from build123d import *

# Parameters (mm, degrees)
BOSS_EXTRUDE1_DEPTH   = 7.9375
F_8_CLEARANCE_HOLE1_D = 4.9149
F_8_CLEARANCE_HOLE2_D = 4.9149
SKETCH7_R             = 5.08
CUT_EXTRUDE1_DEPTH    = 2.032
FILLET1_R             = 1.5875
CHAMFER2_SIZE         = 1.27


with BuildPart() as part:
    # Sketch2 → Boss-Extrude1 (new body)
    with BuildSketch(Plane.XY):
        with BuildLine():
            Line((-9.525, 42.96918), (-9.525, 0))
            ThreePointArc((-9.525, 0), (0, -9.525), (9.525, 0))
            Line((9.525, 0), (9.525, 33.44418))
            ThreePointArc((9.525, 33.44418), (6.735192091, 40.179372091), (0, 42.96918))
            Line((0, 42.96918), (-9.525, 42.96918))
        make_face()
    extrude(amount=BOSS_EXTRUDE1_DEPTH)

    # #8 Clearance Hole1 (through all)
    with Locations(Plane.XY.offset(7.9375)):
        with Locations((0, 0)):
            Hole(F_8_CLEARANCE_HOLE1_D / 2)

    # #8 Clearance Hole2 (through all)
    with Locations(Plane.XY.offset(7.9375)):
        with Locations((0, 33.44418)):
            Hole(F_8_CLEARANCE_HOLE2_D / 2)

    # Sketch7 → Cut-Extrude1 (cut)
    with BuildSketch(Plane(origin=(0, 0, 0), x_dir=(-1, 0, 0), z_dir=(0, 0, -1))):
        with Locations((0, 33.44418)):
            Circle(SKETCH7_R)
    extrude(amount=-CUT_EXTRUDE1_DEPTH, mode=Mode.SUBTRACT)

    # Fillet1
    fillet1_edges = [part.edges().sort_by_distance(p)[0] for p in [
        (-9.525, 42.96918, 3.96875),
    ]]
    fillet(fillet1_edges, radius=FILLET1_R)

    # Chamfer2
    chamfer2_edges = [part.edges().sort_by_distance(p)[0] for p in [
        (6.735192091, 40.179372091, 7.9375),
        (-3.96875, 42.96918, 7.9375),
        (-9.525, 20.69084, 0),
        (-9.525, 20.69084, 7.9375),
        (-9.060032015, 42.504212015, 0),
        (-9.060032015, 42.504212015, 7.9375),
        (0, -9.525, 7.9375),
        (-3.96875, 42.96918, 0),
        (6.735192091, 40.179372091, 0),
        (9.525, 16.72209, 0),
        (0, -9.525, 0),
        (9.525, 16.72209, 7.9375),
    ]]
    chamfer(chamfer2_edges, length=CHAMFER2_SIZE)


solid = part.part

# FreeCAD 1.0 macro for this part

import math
import FreeCAD as App
import Part
import Sketcher
from FreeCAD import Vector
Q = App.Units.Quantity


def edges_at(feature, points):
    """Names of the edges that pass closest to the given points."""
    edges = feature.Shape.Edges
    near = lambda p: min(range(len(edges)), key=lambda i: edges[i].distToShape(Part.Vertex(*p))[0])
    return sorted({f"Edge{near(p) + 1}" for p in points})

doc = App.newDocument("Part")
body = doc.addObject("PartDesign::Body", "Body")

# Sketch on XY plane
sketch1 = doc.addObject("Sketcher::SketchObject", "Sketch")
body.addObject(sketch1)
sketch1.AttachmentSupport = (doc.XY_Plane, [""])
sketch1.MapMode = "FlatFace"
sketch1.addGeometry([
    Part.LineSegment(Vector(-10, 43, 0), Vector(-10, 0, 0)),  # 0
    Part.ArcOfCircle(Part.Circle(Vector(0, 0, 0), Vector(0, 0, 1), 10), math.radians(180), math.radians(360)),  # 1
    Part.LineSegment(Vector(10, 0, 0), Vector(10, 33, 0)),  # 2
    Part.ArcOfCircle(Part.Circle(Vector(0, 33, 0), Vector(0, 0, 1), 10), math.radians(0), math.radians(90)),  # 3
    Part.LineSegment(Vector(0, 43, 0), Vector(-10, 43, 0)),  # 4
], False)
sketch1.addConstraint([
    Sketcher.Constraint("Tangent", 0, 2, 1, 1),
    Sketcher.Constraint("Tangent", 1, 2, 2, 1),
    Sketcher.Constraint("Tangent", 2, 2, 3, 1),
    Sketcher.Constraint("Tangent", 3, 2, 4, 1),
    Sketcher.Constraint("Coincident", 4, 2, 0, 1),
    Sketcher.Constraint("Vertical", 0),
    Sketcher.Constraint("Vertical", 2),
    Sketcher.Constraint("Horizontal", 4),
    Sketcher.Constraint("Coincident", 1, 3, -1, 1),
    Sketcher.Constraint("Equal", 1, 3),
    Sketcher.Constraint("Radius", 1, Q("0.375 in")),
    Sketcher.Constraint("DistanceY", 0, 2, 0, 1, Q("1.6917 in")),
])
pad1 = doc.addObject("PartDesign::Pad", "Pad")
body.addObject(pad1)
pad1.Profile = sketch1
pad1.Length = Q("0.3125 in")

# Sketch on XY plane
sketch2 = doc.addObject("Sketcher::SketchObject", "Sketch001")
body.addObject(sketch2)
sketch2.AttachmentSupport = (doc.XY_Plane, [""])
sketch2.MapMode = "FlatFace"
sketch2.AttachmentOffset = App.Placement(Vector(0, 0, 0.3125 * 25.4), App.Rotation())
sketch2.addGeometry(Part.Circle(Vector(0, 0, 0), Vector(0, 0, 1), 2.5), False)
sketch2.addConstraint([
    Sketcher.Constraint("Coincident", 0, 3, -1, 1),
    Sketcher.Constraint("Diameter", 0, Q("0.1935 in")),
])
doc.recompute()
hole = doc.addObject("PartDesign::Hole", "Hole")
body.addObject(hole)
hole.Profile = sketch2
hole.ThreadType = "None"
hole.Diameter = Q("0.1935 in")
hole.DepthType = "ThroughAll"

# Sketch on XY plane
sketch3 = doc.addObject("Sketcher::SketchObject", "Sketch002")
body.addObject(sketch3)
sketch3.AttachmentSupport = (doc.XY_Plane, [""])
sketch3.MapMode = "FlatFace"
sketch3.AttachmentOffset = App.Placement(Vector(0, 0, 0.3125 * 25.4), App.Rotation())
sketch3.addGeometry(Part.Circle(Vector(0, 33.4, 0), Vector(0, 0, 1), 2.5), False)
sketch3.addConstraint([
    Sketcher.Constraint("PointOnObject", 0, 3, -2),
    Sketcher.Constraint("Diameter", 0, Q("0.1935 in")),
    Sketcher.Constraint("DistanceY", -1, 1, 0, 3, Q("1.3167 in")),
])
doc.recompute()
hole2 = doc.addObject("PartDesign::Hole", "Hole001")
body.addObject(hole2)
hole2.Profile = sketch3
hole2.ThreadType = "None"
hole2.Diameter = Q("0.1935 in")
hole2.DepthType = "ThroughAll"

# Sketch on XY plane
sketch4 = doc.addObject("Sketcher::SketchObject", "Sketch003")
body.addObject(sketch4)
sketch4.AttachmentSupport = (doc.XY_Plane, [""])
sketch4.MapMode = "FlatFace"
sketch4.addGeometry(Part.Circle(Vector(0, 33, 0), Vector(0, 0, 1), 5), False)
sketch4.addConstraint([
    Sketcher.Constraint("PointOnObject", 0, 3, -2),
    Sketcher.Constraint("Diameter", 0, Q("0.4 in")),
    Sketcher.Constraint("DistanceY", -1, 1, 0, 3, Q("1.3167 in")),
])
pocket1 = doc.addObject("PartDesign::Pocket", "Pocket")
body.addObject(pocket1)
pocket1.Profile = sketch4
pocket1.Length = Q("0.08 in")
pocket1.Reversed = True
doc.recompute()

fillet = doc.addObject("PartDesign::Fillet", "Fillet")
body.addObject(fillet)
fillet.Base = (pocket1, edges_at(pocket1, [(-9.525, 42.969, 3.969)]))
fillet.Radius = Q("0.0625 in")
doc.recompute()

chamfer = doc.addObject("PartDesign::Chamfer", "Chamfer")
body.addObject(chamfer)
chamfer.Base = (fillet, edges_at(fillet, [
    (6.735, 40.179, 7.938),
    (-3.969, 42.969, 7.938),
    (-9.525, 20.691, 0),
    (-9.525, 20.691, 7.938),
    (-9.06, 42.504, 0),
    (-9.06, 42.504, 7.938),
    (0, -9.525, 7.938),
    (-3.969, 42.969, 0),
    (6.735, 40.179, 0),
    (9.525, 16.722, 0),
    (0, -9.525, 0),
    (9.525, 16.722, 7.938),
]))
chamfer.Size = Q("0.05 in")

doc.recompute()
